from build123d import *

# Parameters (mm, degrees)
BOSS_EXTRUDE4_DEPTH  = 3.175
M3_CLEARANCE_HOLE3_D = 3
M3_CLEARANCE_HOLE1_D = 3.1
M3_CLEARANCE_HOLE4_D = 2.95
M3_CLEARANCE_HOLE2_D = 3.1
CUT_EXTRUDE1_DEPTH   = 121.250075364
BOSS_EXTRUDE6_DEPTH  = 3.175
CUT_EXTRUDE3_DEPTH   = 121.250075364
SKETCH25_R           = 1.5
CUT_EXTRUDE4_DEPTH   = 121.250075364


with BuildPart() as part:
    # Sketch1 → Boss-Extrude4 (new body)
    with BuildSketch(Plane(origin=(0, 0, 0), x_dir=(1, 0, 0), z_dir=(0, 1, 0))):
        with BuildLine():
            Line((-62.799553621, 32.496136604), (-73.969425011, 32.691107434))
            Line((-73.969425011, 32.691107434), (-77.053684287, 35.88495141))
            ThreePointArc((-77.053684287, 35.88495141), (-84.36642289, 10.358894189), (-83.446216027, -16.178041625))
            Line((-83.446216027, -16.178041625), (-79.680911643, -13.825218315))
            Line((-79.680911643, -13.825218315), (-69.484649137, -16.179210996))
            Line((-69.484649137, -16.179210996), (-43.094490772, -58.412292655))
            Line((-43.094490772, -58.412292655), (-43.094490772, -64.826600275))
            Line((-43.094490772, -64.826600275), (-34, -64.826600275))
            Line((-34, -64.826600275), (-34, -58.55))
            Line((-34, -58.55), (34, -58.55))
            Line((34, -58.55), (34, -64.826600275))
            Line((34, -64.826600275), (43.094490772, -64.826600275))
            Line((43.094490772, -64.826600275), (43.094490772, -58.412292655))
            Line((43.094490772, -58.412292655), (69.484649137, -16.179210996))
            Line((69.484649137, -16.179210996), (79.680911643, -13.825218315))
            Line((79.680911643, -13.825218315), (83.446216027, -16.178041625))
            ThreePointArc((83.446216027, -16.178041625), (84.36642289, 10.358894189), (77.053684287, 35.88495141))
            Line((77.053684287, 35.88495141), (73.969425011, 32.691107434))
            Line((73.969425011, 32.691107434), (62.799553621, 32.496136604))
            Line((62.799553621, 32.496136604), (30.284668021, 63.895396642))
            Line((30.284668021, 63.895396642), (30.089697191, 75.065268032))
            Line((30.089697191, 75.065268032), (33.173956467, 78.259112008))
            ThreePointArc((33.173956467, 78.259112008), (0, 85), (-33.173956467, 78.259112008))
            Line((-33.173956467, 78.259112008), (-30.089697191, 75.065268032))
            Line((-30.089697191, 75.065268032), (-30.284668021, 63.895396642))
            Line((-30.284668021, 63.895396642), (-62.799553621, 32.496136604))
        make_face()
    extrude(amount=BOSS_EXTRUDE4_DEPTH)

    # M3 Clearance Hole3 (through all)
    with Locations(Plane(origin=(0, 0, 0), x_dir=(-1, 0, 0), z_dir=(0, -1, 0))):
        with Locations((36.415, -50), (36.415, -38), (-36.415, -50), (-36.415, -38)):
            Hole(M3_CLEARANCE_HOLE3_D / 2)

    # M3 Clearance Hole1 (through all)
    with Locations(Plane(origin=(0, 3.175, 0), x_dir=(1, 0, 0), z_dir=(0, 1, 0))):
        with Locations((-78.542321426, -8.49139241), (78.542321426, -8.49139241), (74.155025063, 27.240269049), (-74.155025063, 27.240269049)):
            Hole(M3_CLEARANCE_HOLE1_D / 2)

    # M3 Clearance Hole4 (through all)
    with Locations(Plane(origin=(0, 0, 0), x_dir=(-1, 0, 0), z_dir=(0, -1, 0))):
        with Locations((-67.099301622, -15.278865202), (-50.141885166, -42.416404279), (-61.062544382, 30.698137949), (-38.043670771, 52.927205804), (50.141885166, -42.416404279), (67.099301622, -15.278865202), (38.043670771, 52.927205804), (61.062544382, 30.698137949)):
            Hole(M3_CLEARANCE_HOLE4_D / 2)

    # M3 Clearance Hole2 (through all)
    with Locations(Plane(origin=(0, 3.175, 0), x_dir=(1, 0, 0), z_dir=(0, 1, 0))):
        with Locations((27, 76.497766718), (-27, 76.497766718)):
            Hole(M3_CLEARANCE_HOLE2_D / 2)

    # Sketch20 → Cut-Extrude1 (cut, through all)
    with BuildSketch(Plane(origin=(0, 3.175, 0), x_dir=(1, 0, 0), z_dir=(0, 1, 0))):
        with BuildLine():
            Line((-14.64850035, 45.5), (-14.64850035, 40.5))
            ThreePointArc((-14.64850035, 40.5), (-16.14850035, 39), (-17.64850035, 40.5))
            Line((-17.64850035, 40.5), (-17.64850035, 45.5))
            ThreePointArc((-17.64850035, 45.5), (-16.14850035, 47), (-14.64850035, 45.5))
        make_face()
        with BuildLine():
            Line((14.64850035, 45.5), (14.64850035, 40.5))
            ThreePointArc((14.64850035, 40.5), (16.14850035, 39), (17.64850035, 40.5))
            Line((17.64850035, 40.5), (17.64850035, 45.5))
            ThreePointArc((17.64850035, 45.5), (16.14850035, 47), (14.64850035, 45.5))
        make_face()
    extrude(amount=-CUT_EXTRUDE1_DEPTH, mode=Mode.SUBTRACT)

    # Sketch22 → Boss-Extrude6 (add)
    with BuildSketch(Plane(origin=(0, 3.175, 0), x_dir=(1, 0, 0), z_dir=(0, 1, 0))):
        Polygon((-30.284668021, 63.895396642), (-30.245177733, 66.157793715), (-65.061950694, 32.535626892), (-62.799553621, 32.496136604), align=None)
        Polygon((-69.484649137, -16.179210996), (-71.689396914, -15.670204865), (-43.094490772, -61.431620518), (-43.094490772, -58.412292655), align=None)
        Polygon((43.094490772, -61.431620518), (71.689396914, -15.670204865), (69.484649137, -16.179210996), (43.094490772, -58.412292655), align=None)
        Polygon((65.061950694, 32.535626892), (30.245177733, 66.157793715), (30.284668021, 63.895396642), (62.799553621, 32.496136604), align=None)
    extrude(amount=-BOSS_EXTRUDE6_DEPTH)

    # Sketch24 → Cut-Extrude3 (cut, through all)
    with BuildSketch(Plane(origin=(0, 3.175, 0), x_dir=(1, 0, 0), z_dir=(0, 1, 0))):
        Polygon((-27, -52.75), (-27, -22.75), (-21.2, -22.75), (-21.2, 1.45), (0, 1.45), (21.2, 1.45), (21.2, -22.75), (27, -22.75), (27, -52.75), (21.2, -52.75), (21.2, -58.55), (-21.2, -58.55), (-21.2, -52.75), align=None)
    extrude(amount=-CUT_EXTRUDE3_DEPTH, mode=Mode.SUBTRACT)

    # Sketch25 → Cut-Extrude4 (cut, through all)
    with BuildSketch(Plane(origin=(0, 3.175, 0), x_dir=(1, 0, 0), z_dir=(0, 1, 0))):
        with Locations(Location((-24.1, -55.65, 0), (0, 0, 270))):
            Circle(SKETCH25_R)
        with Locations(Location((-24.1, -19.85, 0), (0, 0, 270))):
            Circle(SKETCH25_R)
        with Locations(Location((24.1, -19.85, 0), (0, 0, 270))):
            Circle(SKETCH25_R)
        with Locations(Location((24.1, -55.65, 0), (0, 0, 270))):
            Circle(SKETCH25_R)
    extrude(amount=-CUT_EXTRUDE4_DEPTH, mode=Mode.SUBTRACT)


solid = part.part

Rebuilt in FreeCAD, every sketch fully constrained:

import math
import FreeCAD as App
import Part
import Sketcher
Q = App.Units.Quantity


def add_polygon(sketch, points):
    """Adds a closed chain of lines whose ends are joined by coincident constraints."""
    first, n = sketch.GeometryCount, len(points)
    for a, b in zip(points, points[1:] + points[:1]):
        sketch.addGeometry(Part.LineSegment(App.Vector(*a, 0), App.Vector(*b, 0)), False)
    for i in range(n):
        sketch.addConstraint(Sketcher.Constraint("Coincident", first + i, 2, first + (i + 1) % n, 1))

doc = App.newDocument("Part")
params = doc.addObject("Spreadsheet::Sheet", "Params")
for row, (alias, value) in enumerate([
    ("sketch1_radius", "85 mm"),
    ("sketch1_width", "68 mm"),
    ("pad1_length", "3.175 mm"),
    ("sketch2_diameter", "3 mm"),
    ("hole_diameter", "3 mm"),
    ("sketch3_diameter", "3.1 mm"),
    ("hole2_diameter", "3.1 mm"),
    ("sketch4_diameter", "2.95 mm"),
    ("hole3_diameter", "2.95 mm"),
    ("sketch5_diameter", "3.1 mm"),
    ("hole4_diameter", "3.1 mm"),
    ("sketch6_radius", "1.5 mm"),
    ("sketch6_height", "5 mm"),
    ("pad2_length", "3.175 mm"),
    ("sketch8_height", "30 mm"),
    ("sketch8_width", "5.8 mm"),
    ("sketch8_width2", "42.4 mm"),
    ("sketch8_height2", "24.2 mm"),
    ("sketch9_diameter", "3 mm"),
], start=1):
    params.set(f"A{row}", alias)
    params.set(f"B{row}", "=" + value)
    params.setAlias(f"B{row}", alias)

body = doc.addObject("PartDesign::Body", "Body")

sketch1 = body.newObject("Sketcher::SketchObject", "Sketch")
sketch1.AttachmentSupport = (doc.getObject("XZ_Plane"), [""])
sketch1.MapMode = "FlatFace"
sketch1.addGeometry([
    Part.LineSegment(App.Vector(-62.799554, -32.496137, 0), App.Vector(-73.969425, -32.691107, 0)),
    Part.LineSegment(App.Vector(-73.969425, -32.691107, 0), App.Vector(-77.053684, -35.884951, 0)),
    Part.ArcOfCircle(Part.Circle(App.Vector(0, 0, 0), App.Vector(0, 0, 1), 85), math.radians(169.027963), math.radians(204.972037)),
    Part.LineSegment(App.Vector(-83.446216, 16.178042, 0), App.Vector(-79.680912, 13.825218, 0)),
    Part.LineSegment(App.Vector(-79.680912, 13.825218, 0), App.Vector(-69.484649, 16.179211, 0)),
    Part.LineSegment(App.Vector(-69.484649, 16.179211, 0), App.Vector(-43.094491, 58.412293, 0)),
    Part.LineSegment(App.Vector(-43.094491, 58.412293, 0), App.Vector(-43.094491, 64.8266, 0)),
    Part.LineSegment(App.Vector(-43.094491, 64.8266, 0), App.Vector(-34, 64.8266, 0)),
    Part.LineSegment(App.Vector(-34, 64.8266, 0), App.Vector(-34, 58.55, 0)),
    Part.LineSegment(App.Vector(-34, 58.55, 0), App.Vector(34, 58.55, 0)),
    Part.LineSegment(App.Vector(34, 58.55, 0), App.Vector(34, 64.8266, 0)),
    Part.LineSegment(App.Vector(34, 64.8266, 0), App.Vector(43.094491, 64.8266, 0)),
    Part.LineSegment(App.Vector(43.094491, 64.8266, 0), App.Vector(43.094491, 58.412293, 0)),
    Part.LineSegment(App.Vector(43.094491, 58.412293, 0), App.Vector(69.484649, 16.179211, 0)),
    Part.LineSegment(App.Vector(69.484649, 16.179211, 0), App.Vector(79.680912, 13.825218, 0)),
    Part.LineSegment(App.Vector(79.680912, 13.825218, 0), App.Vector(83.446216, 16.178042, 0)),
    Part.ArcOfCircle(Part.Circle(App.Vector(0, 0, 0), App.Vector(0, 0, 1), 85), math.radians(-24.972037), math.radians(10.972037)),
    Part.LineSegment(App.Vector(77.053684, -35.884951, 0), App.Vector(73.969425, -32.691107, 0)),
    Part.LineSegment(App.Vector(73.969425, -32.691107, 0), App.Vector(62.799554, -32.496137, 0)),
    Part.LineSegment(App.Vector(62.799554, -32.496137, 0), App.Vector(30.284668, -63.895397, 0)),
    Part.LineSegment(App.Vector(30.284668, -63.895397, 0), App.Vector(30.089697, -75.065268, 0)),
    Part.LineSegment(App.Vector(30.089697, -75.065268, 0), App.Vector(33.173956, -78.259112, 0)),
    Part.ArcOfCircle(Part.Circle(App.Vector(0, 0, 0), App.Vector(0, 0, 1), 85), math.radians(-112.972037), math.radians(-67.027963)),
    Part.LineSegment(App.Vector(-33.173956, -78.259112, 0), App.Vector(-30.089697, -75.065268, 0)),
    Part.LineSegment(App.Vector(-30.089697, -75.065268, 0), App.Vector(-30.284668, -63.895397, 0)),
    Part.LineSegment(App.Vector(-30.284668, -63.895397, 0), App.Vector(-62.799554, -32.496137, 0)),
], False)
sketch1.addConstraint([
    Sketcher.Constraint("Coincident", 0, 2, 1, 1),
    Sketcher.Constraint("Coincident", 1, 2, 2, 2),
    Sketcher.Constraint("Coincident", 2, 1, 3, 1),
    Sketcher.Constraint("Coincident", 3, 2, 4, 1),
    Sketcher.Constraint("Coincident", 4, 2, 5, 1),
    Sketcher.Constraint("Coincident", 5, 2, 6, 1),
    Sketcher.Constraint("Coincident", 6, 2, 7, 1),
    Sketcher.Constraint("Coincident", 7, 2, 8, 1),
    Sketcher.Constraint("Coincident", 8, 2, 9, 1),
    Sketcher.Constraint("Coincident", 9, 2, 10, 1),
    Sketcher.Constraint("Coincident", 10, 2, 11, 1),
    Sketcher.Constraint("Coincident", 11, 2, 12, 1),
    Sketcher.Constraint("Coincident", 12, 2, 13, 1),
    Sketcher.Constraint("Coincident", 13, 2, 14, 1),
    Sketcher.Constraint("Coincident", 14, 2, 15, 1),
    Sketcher.Constraint("Coincident", 15, 2, 16, 2),
    Sketcher.Constraint("Coincident", 16, 1, 17, 1),
    Sketcher.Constraint("Coincident", 17, 2, 18, 1),
    Sketcher.Constraint("Coincident", 18, 2, 19, 1),
    Sketcher.Constraint("Coincident", 19, 2, 20, 1),
    Sketcher.Constraint("Coincident", 20, 2, 21, 1),
    Sketcher.Constraint("Coincident", 21, 2, 22, 2),
    Sketcher.Constraint("Coincident", 22, 1, 23, 1),
    Sketcher.Constraint("Coincident", 23, 2, 24, 1),
    Sketcher.Constraint("Coincident", 24, 2, 25, 1),
    Sketcher.Constraint("Coincident", 25, 2, 0, 1),
    Sketcher.Constraint("Vertical", 6),
    Sketcher.Constraint("Horizontal", 7),
    Sketcher.Constraint("Vertical", 8),
    Sketcher.Constraint("Horizontal", 9),
    Sketcher.Constraint("Vertical", 10),
    Sketcher.Constraint("Horizontal", 11),
    Sketcher.Constraint("Vertical", 12),
    Sketcher.Constraint("Coincident", 2, 3, -1, 1),
    Sketcher.Constraint("Coincident", 16, 3, -1, 1),
    Sketcher.Constraint("Coincident", 22, 3, -1, 1),
    Sketcher.Constraint("Equal", 2, 16),
    Sketcher.Constraint("Equal", 16, 22),
    Sketcher.Constraint("Symmetric", 7, 2, 10, 2, -2),
    Sketcher.Constraint("Symmetric", 5, 2, 12, 2, -2),
    Sketcher.Constraint("Symmetric", 4, 2, 13, 2, -2),
    Sketcher.Constraint("Symmetric", 3, 2, 14, 2, -2),
    Sketcher.Constraint("Symmetric", 0, 2, 17, 2, -2),
    Sketcher.Constraint("Symmetric", 20, 2, 23, 2, -2),
    Sketcher.Constraint("Symmetric", 19, 2, 24, 2, -2),
    Sketcher.Constraint("Symmetric", 18, 2, 25, 2, -2),
    Sketcher.Constraint("Perpendicular", 3, 5),
    Sketcher.Constraint("Perpendicular", 13, 15),
    Sketcher.Constraint("Perpendicular", 17, 19),
    Sketcher.Constraint("Perpendicular", 18, 20),
    Sketcher.Constraint("Perpendicular", 19, 21),
    Sketcher.Constraint("Parallel", 1, 23),
    Sketcher.Constraint("Perpendicular", 23, 25),
    Sketcher.Constraint("Equal", 1, 3),
    Sketcher.Constraint("Equal", 18, 20),
    Sketcher.Constraint("Equal", 17, 21),
    Sketcher.Constraint("Radius", 2, Q("85 mm")),
    Sketcher.Constraint("DistanceX", 9, 1, 9, 2, Q("68 mm")),
    Sketcher.Constraint("Angle", 0, Q("-179 deg")),
    Sketcher.Constraint("Angle", 1, Q("-134 deg")),
    Sketcher.Constraint("Angle", 3, Q("-32 deg")),
    Sketcher.Constraint("Angle", 4, Q("13 deg")),
    Sketcher.Constraint("DistanceY", -1, 1, 8, 2, Q("58.55 mm")),
    Sketcher.Constraint("DistanceY", 8, 2, 8, 1, Q("6.2766 mm")),
    Sketcher.Constraint("DistanceX", 7, 1, 7, 2, Q("9.094491 mm")),
    Sketcher.Constraint("Distance", 19, Q("45.20101 mm")),
    Sketcher.Constraint("DistanceY", 6, 1, 6, 2, Q("6.414308 mm")),
    Sketcher.Constraint("DistanceY", 1, 2, -1, 1, Q("35.884951 mm")),
    Sketcher.Constraint("DistanceY", -1, 1, 2, 1, Q("16.178042 mm")),
    Sketcher.Constraint("DistanceX", 3, 2, -1, 1, Q("79.680912 mm")),
])
sketch1.setExpression("Constraints[56]", "Params.sketch1_radius")
sketch1.setExpression("Constraints[57]", "Params.sketch1_width")
pad1 = body.newObject("PartDesign::Pad", "Pad")
pad1.Profile = sketch1
pad1.setExpression("Length", "Params.pad1_length")
pad1.Reversed = True

sketch2 = body.newObject("Sketcher::SketchObject", "Sketch001")
sketch2.AttachmentSupport = (doc.getObject("XZ_Plane"), [""])
sketch2.MapMode = "FlatFace"
sketch2.addGeometry([
    Part.Circle(App.Vector(-36.415, 50, 0), App.Vector(0, 0, 1), 1.5),
    Part.Circle(App.Vector(-36.415, 38, 0), App.Vector(0, 0, 1), 1.5),
    Part.Circle(App.Vector(36.415, 50, 0), App.Vector(0, 0, 1), 1.5),
    Part.Circle(App.Vector(36.415, 38, 0), App.Vector(0, 0, 1), 1.5),
], False)
sketch2.addConstraint([
    Sketcher.Constraint("Equal", 0, 1),
    Sketcher.Constraint("Equal", 1, 2),
    Sketcher.Constraint("Equal", 2, 3),
    Sketcher.Constraint("Symmetric", 0, 3, 2, 3, -2),
    Sketcher.Constraint("Symmetric", 1, 3, 3, 3, -2),
    Sketcher.Constraint("Vertical", 0, 3, 1, 3),
    Sketcher.Constraint("Diameter", 0, Q("3 mm")),
    Sketcher.Constraint("DistanceY", -1, 1, 0, 3, Q("50 mm")),
    Sketcher.Constraint("DistanceY", -1, 1, 1, 3, Q("38 mm")),
    Sketcher.Constraint("DistanceX", 0, 3, 2, 3, Q("72.83 mm")),
])
sketch2.setExpression("Constraints[6]", "Params.sketch2_diameter")
doc.recompute()
hole = body.newObject("PartDesign::Hole", "Hole")
hole.Profile = sketch2
hole.ThreadType = "None"
hole.setExpression("Diameter", "Params.hole_diameter")
hole.DepthType = "ThroughAll"

sketch3 = body.newObject("Sketcher::SketchObject", "Sketch002")
sketch3.AttachmentSupport = (doc.getObject("XZ_Plane"), [""])
sketch3.MapMode = "FlatFace"
sketch3.AttachmentOffset = App.Placement(App.Vector(0, 0, -3.175), App.Rotation())
sketch3.addGeometry([
    Part.Circle(App.Vector(-78.542321, 8.491392, 0), App.Vector(0, 0, 1), 1.55),
    Part.Circle(App.Vector(78.542321, 8.491392, 0), App.Vector(0, 0, 1), 1.55),
    Part.Circle(App.Vector(74.155025, -27.240269, 0), App.Vector(0, 0, 1), 1.55),
    Part.Circle(App.Vector(-74.155025, -27.240269, 0), App.Vector(0, 0, 1), 1.55),
], False)
sketch3.addConstraint([
    Sketcher.Constraint("Equal", 0, 1),
    Sketcher.Constraint("Equal", 1, 2),
    Sketcher.Constraint("Equal", 2, 3),
    Sketcher.Constraint("Symmetric", 0, 3, 1, 3, -2),
    Sketcher.Constraint("Symmetric", 2, 3, 3, 3, -2),
    Sketcher.Constraint("Diameter", 0, Q("3.1 mm")),
    Sketcher.Constraint("DistanceX", 0, 3, -1, 1, Q("78.542321 mm")),
    Sketcher.Constraint("DistanceY", 2, 3, -1, 1, Q("27.240269 mm")),
    Sketcher.Constraint("DistanceY", 2, 3, 1, 3, Q("35.731661 mm")),
    Sketcher.Constraint("DistanceX", 3, 3, 2, 3, Q("148.31005 mm")),
])
sketch3.setExpression("Constraints[5]", "Params.sketch3_diameter")
doc.recompute()
hole2 = body.newObject("PartDesign::Hole", "Hole001")
hole2.Profile = sketch3
hole2.ThreadType = "None"
hole2.setExpression("Diameter", "Params.hole2_diameter")
hole2.DepthType = "ThroughAll"
hole2.Reversed = True

sketch4 = body.newObject("Sketcher::SketchObject", "Sketch003")
sketch4.AttachmentSupport = (doc.getObject("XZ_Plane"), [""])
sketch4.MapMode = "FlatFace"
sketch4.addGeometry([
    Part.Circle(App.Vector(67.099302, 15.278865, 0), App.Vector(0, 0, 1), 1.475),
    Part.Circle(App.Vector(50.141885, 42.416404, 0), App.Vector(0, 0, 1), 1.475),
    Part.Circle(App.Vector(61.062544, -30.698138, 0), App.Vector(0, 0, 1), 1.475),
    Part.Circle(App.Vector(38.043671, -52.927206, 0), App.Vector(0, 0, 1), 1.475),
    Part.Circle(App.Vector(-50.141885, 42.416404, 0), App.Vector(0, 0, 1), 1.475),
    Part.Circle(App.Vector(-67.099302, 15.278865, 0), App.Vector(0, 0, 1), 1.475),
    Part.Circle(App.Vector(-38.043671, -52.927206, 0), App.Vector(0, 0, 1), 1.475),
    Part.Circle(App.Vector(-61.062544, -30.698138, 0), App.Vector(0, 0, 1), 1.475),
], False)
sketch4.addConstraint([
    Sketcher.Constraint("Equal", 0, 1),
    Sketcher.Constraint("Equal", 1, 2),
    Sketcher.Constraint("Equal", 2, 3),
    Sketcher.Constraint("Equal", 3, 4),
    Sketcher.Constraint("Equal", 4, 5),
    Sketcher.Constraint("Equal", 5, 6),
    Sketcher.Constraint("Equal", 6, 7),
    Sketcher.Constraint("Symmetric", 1, 3, 4, 3, -2),
    Sketcher.Constraint("Symmetric", 0, 3, 5, 3, -2),
    Sketcher.Constraint("Symmetric", 3, 3, 6, 3, -2),
    Sketcher.Constraint("Symmetric", 2, 3, 7, 3, -2),
    Sketcher.Constraint("Diameter", 0, Q("2.95 mm")),
    Sketcher.Constraint("DistanceX", -1, 1, 0, 3, Q("67.099302 mm")),
    Sketcher.Constraint("DistanceX", -1, 1, 3, 3, Q("38.043671 mm")),
    Sketcher.Constraint("DistanceY", 0, 3, 1, 3, Q("27.137539 mm")),
    Sketcher.Constraint("DistanceX", 1, 3, 2, 3, Q("10.920659 mm")),
    Sketcher.Constraint("DistanceY", 3, 3, 0, 3, Q("68.206071 mm")),
    Sketcher.Constraint("DistanceX", 4, 3, 1, 3, Q("100.28377 mm")),
    Sketcher.Constraint("DistanceY", -1, 1, 0, 3, Q("15.278865 mm")),
    Sketcher.Constraint("DistanceY", 2, 3, -1, 1, Q("30.698138 mm")),
])
sketch4.setExpression("Constraints[11]", "Params.sketch4_diameter")
doc.recompute()
hole3 = body.newObject("PartDesign::Hole", "Hole002")
hole3.Profile = sketch4
hole3.ThreadType = "None"
hole3.setExpression("Diameter", "Params.hole3_diameter")
hole3.DepthType = "ThroughAll"

sketch5 = body.newObject("Sketcher::SketchObject", "Sketch004")
sketch5.AttachmentSupport = (doc.getObject("XZ_Plane"), [""])
sketch5.MapMode = "FlatFace"
sketch5.AttachmentOffset = App.Placement(App.Vector(0, 0, -3.175), App.Rotation())
sketch5.addGeometry([
    Part.Circle(App.Vector(27, -76.497767, 0), App.Vector(0, 0, 1), 1.55),
    Part.Circle(App.Vector(-27, -76.497767, 0), App.Vector(0, 0, 1), 1.55),
], False)
sketch5.addConstraint([
    Sketcher.Constraint("Equal", 0, 1),
    Sketcher.Constraint("Symmetric", 0, 3, 1, 3, -2),
    Sketcher.Constraint("Diameter", 0, Q("3.1 mm")),
    Sketcher.Constraint("DistanceX", -1, 1, 0, 3, Q("27 mm")),
    Sketcher.Constraint("DistanceY", 0, 3, -1, 1, Q("76.497767 mm")),
])
sketch5.setExpression("Constraints[2]", "Params.sketch5_diameter")
doc.recompute()
hole4 = body.newObject("PartDesign::Hole", "Hole003")
hole4.Profile = sketch5
hole4.ThreadType = "None"
hole4.setExpression("Diameter", "Params.hole4_diameter")
hole4.DepthType = "ThroughAll"
hole4.Reversed = True

sketch6 = body.newObject("Sketcher::SketchObject", "Sketch005")
sketch6.AttachmentSupport = (doc.getObject("XZ_Plane"), [""])
sketch6.MapMode = "FlatFace"
sketch6.AttachmentOffset = App.Placement(App.Vector(0, 0, -3.175), App.Rotation())
sketch6.addGeometry([
    Part.LineSegment(App.Vector(-14.6485, -40.5, 0), App.Vector(-14.6485, -45.5, 0)),
    Part.ArcOfCircle(Part.Circle(App.Vector(-16.1485, -45.5, 0), App.Vector(0, 0, 1), 1.5), math.radians(180), math.radians(360)),
    Part.LineSegment(App.Vector(-17.6485, -45.5, 0), App.Vector(-17.6485, -40.5, 0)),
    Part.ArcOfCircle(Part.Circle(App.Vector(-16.1485, -40.5, 0), App.Vector(0, 0, 1), 1.5), math.radians(0), math.radians(180)),
    Part.LineSegment(App.Vector(14.6485, -45.5, 0), App.Vector(14.6485, -40.5, 0)),
    Part.ArcOfCircle(Part.Circle(App.Vector(16.1485, -40.5, 0), App.Vector(0, 0, 1), 1.5), math.radians(0), math.radians(180)),
    Part.LineSegment(App.Vector(17.6485, -40.5, 0), App.Vector(17.6485, -45.5, 0)),
    Part.ArcOfCircle(Part.Circle(App.Vector(16.1485, -45.5, 0), App.Vector(0, 0, 1), 1.5), math.radians(180), math.radians(360)),
], False)
sketch6.addConstraint([
    Sketcher.Constraint("Tangent", 0, 2, 1, 2),
    Sketcher.Constraint("Tangent", 1, 1, 2, 1),
    Sketcher.Constraint("Tangent", 2, 2, 3, 2),
    Sketcher.Constraint("Tangent", 3, 1, 0, 1),
    Sketcher.Constraint("Tangent", 4, 2, 5, 2),
    Sketcher.Constraint("Tangent", 5, 1, 6, 1),
    Sketcher.Constraint("Tangent", 6, 2, 7, 2),
    Sketcher.Constraint("Tangent", 7, 1, 4, 1),
    Sketcher.Constraint("Vertical", 0),
    Sketcher.Constraint("Vertical", 2),
    Sketcher.Constraint("Vertical", 4),
    Sketcher.Constraint("Vertical", 6),
    Sketcher.Constraint("Equal", 3, 5),
    Sketcher.Constraint("Symmetric", 3, 3, 5, 3, -2),
    Sketcher.Constraint("Horizontal", 1, 3, 7, 3),
    Sketcher.Constraint("Radius", 1, Q("1.5 mm")),
    Sketcher.Constraint("DistanceY", 0, 2, 0, 1, Q("5 mm")),
    Sketcher.Constraint("DistanceY", 1, 3, -1, 1, Q("45.5 mm")),
    Sketcher.Constraint("DistanceX", 3, 3, 5, 3, Q("32.297001 mm")),
])
sketch6.setExpression("Constraints[15]", "Params.sketch6_radius")
sketch6.setExpression("Constraints[16]", "Params.sketch6_height")
pocket1 = body.newObject("PartDesign::Pocket", "Pocket")
pocket1.Profile = sketch6
pocket1.Type = "ThroughAll"
pocket1.Reversed = True

sketch7 = body.newObject("Sketcher::SketchObject", "Sketch006")
sketch7.AttachmentSupport = (doc.getObject("XZ_Plane"), [""])
sketch7.MapMode = "FlatFace"
sketch7.AttachmentOffset = App.Placement(App.Vector(0, 0, -3.175), App.Rotation())
add_polygon(sketch7, [(-30.284668, -63.895397), (-30.245178, -66.157794), (-65.061951, -32.535627), (-62.799554, -32.496137)])
add_polygon(sketch7, [(-69.484649, 16.179211), (-71.689397, 15.670205), (-43.094491, 61.431621), (-43.094491, 58.412293)])
add_polygon(sketch7, [(43.094491, 61.431621), (71.689397, 15.670205), (69.484649, 16.179211), (43.094491, 58.412293)])
add_polygon(sketch7, [(65.061951, -32.535627), (30.245178, -66.157794), (30.284668, -63.895397), (62.799554, -32.496137)])
sketch7.addConstraint([
    Sketcher.Constraint("Vertical", 6),
    Sketcher.Constraint("Vertical", 11),
    Sketcher.Constraint("Symmetric", 4, 2, 8, 2, -2),
    Sketcher.Constraint("Symmetric", 7, 2, 9, 2, -2),
    Sketcher.Constraint("Symmetric", 6, 2, 10, 2, -2),
    Sketcher.Constraint("Symmetric", 0, 2, 12, 2, -2),
    Sketcher.Constraint("Symmetric", 3, 2, 13, 2, -2),
    Sketcher.Constraint("Symmetric", 2, 2, 14, 2, -2),
    Sketcher.Constraint("Symmetric", 1, 2, 15, 2, -2),
    Sketcher.Constraint("Perpendicular", 0, 2),
    Sketcher.Constraint("Parallel", 1, 3),
    Sketcher.Constraint("Parallel", 5, 7),
    Sketcher.Constraint("Parallel", 8, 10),
    Sketcher.Constraint("Equal", 0, 2),
    Sketcher.Constraint("Equal", 2, 4),
    Sketcher.Constraint("Angle", 0, Q("-89 deg")),
    Sketcher.Constraint("Angle", 4, Q("-167 deg")),
    Sketcher.Constraint("Angle", 5, Q("58 deg")),
    Sketcher.Constraint("DistanceY", 0, 2, 4, 2, Q("81.827999 mm")),
    Sketcher.Constraint("DistanceY", 3, 2, 4, 2, Q("79.565602 mm")),
    Sketcher.Constraint("DistanceX", 7, 2, 1, 2, Q("4.422698 mm")),
    Sketcher.Constraint("Distance", 1, Q("48.40101 mm")),
    Sketcher.Constraint("DistanceX", 1, 2, -1, 1, Q("65.061951 mm")),
    Sketcher.Constraint("DistanceX", 5, 2, -1, 1, Q("43.094491 mm")),
    Sketcher.Constraint("DistanceY", -1, 1, 5, 2, Q("61.431621 mm")),
])
pad2 = body.newObject("PartDesign::Pad", "Pad001")
pad2.Profile = sketch7
pad2.setExpression("Length", "Params.pad2_length")

sketch8 = body.newObject("Sketcher::SketchObject", "Sketch007")
sketch8.AttachmentSupport = (doc.getObject("XZ_Plane"), [""])
sketch8.MapMode = "FlatFace"
sketch8.AttachmentOffset = App.Placement(App.Vector(0, 0, -3.175), App.Rotation())
add_polygon(sketch8, [(-27, 22.75), (-27, 52.75), (-21.2, 52.75), (-21.2, 58.55), (21.2, 58.55), (21.2, 52.75), (27, 52.75), (27, 22.75), (21.2, 22.75), (21.2, -1.45), (-21.2, -1.45), (-21.2, 22.75)])
sketch8.addConstraint([
    Sketcher.Constraint("Vertical", 0),
    Sketcher.Constraint("Horizontal", 1),
    Sketcher.Constraint("Vertical", 2),
    Sketcher.Constraint("Horizontal", 3),
    Sketcher.Constraint("Vertical", 4),
    Sketcher.Constraint("Horizontal", 5),
    Sketcher.Constraint("Vertical", 6),
    Sketcher.Constraint("Horizontal", 7),
    Sketcher.Constraint("Vertical", 8),
    Sketcher.Constraint("Horizontal", 9),
    Sketcher.Constraint("Vertical", 10),
    Sketcher.Constraint("Horizontal", 11),
    Sketcher.Constraint("Symmetric", 1, 2, 4, 2, -2),
    Sketcher.Constraint("Symmetric", 7, 2, 10, 2, -2),
    Sketcher.Constraint("Vertical", 4, 2, 7, 2),
    Sketcher.Constraint("Equal", 1, 5),
    Sketcher.Constraint("Equal", 11, 2),
    Sketcher.Constraint("DistanceY", 0, 1, 0, 2, Q("30 mm")),
    Sketcher.Constraint("DistanceX", 1, 1, 1, 2, Q("5.8 mm")),
    Sketcher.Constraint("DistanceX", 3, 1, 3, 2, Q("42.4 mm")),
    Sketcher.Constraint("DistanceY", 8, 2, 8, 1, Q("24.2 mm")),
    Sketcher.Constraint("DistanceY", -1, 1, 0, 2, Q("52.75 mm")),
])
sketch8.setExpression("Constraints[29]", "Params.sketch8_height")
sketch8.setExpression("Constraints[30]", "Params.sketch8_width")
sketch8.setExpression("Constraints[31]", "Params.sketch8_width2")
sketch8.setExpression("Constraints[32]", "Params.sketch8_height2")
pocket2 = body.newObject("PartDesign::Pocket", "Pocket001")
pocket2.Profile = sketch8
pocket2.Type = "ThroughAll"
pocket2.Reversed = True

sketch9 = body.newObject("Sketcher::SketchObject", "Sketch008")
sketch9.AttachmentSupport = (doc.getObject("XZ_Plane"), [""])
sketch9.MapMode = "FlatFace"
sketch9.AttachmentOffset = App.Placement(App.Vector(0, 0, -3.175), App.Rotation())
sketch9.addGeometry([
    Part.Circle(App.Vector(-24.1, 55.65, 0), App.Vector(0, 0, 1), 1.5),
    Part.Circle(App.Vector(-24.1, 19.85, 0), App.Vector(0, 0, 1), 1.5),
    Part.Circle(App.Vector(24.1, 19.85, 0), App.Vector(0, 0, 1), 1.5),
    Part.Circle(App.Vector(24.1, 55.65, 0), App.Vector(0, 0, 1), 1.5),
], False)
sketch9.addConstraint([
    Sketcher.Constraint("Equal", 0, 1),
    Sketcher.Constraint("Equal", 1, 2),
    Sketcher.Constraint("Equal", 2, 3),
    Sketcher.Constraint("Symmetric", 1, 3, 2, 3, -2),
    Sketcher.Constraint("Symmetric", 0, 3, 3, 3, -2),
    Sketcher.Constraint("Vertical", 0, 3, 1, 3),
    Sketcher.Constraint("Diameter", 0, Q("3 mm")),
    Sketcher.Constraint("DistanceX", 0, 3, -1, 1, Q("24.1 mm")),
    Sketcher.Constraint("DistanceY", 1, 3, 0, 3, Q("35.8 mm")),
    Sketcher.Constraint("DistanceY", -1, 1, 0, 3, Q("55.65 mm")),
])
sketch9.setExpression("Constraints[6]", "Params.sketch9_diameter")
pocket3 = body.newObject("PartDesign::Pocket", "Pocket002")
pocket3.Profile = sketch9
pocket3.Type = "ThroughAll"
pocket3.Reversed = True

doc.recompute()
